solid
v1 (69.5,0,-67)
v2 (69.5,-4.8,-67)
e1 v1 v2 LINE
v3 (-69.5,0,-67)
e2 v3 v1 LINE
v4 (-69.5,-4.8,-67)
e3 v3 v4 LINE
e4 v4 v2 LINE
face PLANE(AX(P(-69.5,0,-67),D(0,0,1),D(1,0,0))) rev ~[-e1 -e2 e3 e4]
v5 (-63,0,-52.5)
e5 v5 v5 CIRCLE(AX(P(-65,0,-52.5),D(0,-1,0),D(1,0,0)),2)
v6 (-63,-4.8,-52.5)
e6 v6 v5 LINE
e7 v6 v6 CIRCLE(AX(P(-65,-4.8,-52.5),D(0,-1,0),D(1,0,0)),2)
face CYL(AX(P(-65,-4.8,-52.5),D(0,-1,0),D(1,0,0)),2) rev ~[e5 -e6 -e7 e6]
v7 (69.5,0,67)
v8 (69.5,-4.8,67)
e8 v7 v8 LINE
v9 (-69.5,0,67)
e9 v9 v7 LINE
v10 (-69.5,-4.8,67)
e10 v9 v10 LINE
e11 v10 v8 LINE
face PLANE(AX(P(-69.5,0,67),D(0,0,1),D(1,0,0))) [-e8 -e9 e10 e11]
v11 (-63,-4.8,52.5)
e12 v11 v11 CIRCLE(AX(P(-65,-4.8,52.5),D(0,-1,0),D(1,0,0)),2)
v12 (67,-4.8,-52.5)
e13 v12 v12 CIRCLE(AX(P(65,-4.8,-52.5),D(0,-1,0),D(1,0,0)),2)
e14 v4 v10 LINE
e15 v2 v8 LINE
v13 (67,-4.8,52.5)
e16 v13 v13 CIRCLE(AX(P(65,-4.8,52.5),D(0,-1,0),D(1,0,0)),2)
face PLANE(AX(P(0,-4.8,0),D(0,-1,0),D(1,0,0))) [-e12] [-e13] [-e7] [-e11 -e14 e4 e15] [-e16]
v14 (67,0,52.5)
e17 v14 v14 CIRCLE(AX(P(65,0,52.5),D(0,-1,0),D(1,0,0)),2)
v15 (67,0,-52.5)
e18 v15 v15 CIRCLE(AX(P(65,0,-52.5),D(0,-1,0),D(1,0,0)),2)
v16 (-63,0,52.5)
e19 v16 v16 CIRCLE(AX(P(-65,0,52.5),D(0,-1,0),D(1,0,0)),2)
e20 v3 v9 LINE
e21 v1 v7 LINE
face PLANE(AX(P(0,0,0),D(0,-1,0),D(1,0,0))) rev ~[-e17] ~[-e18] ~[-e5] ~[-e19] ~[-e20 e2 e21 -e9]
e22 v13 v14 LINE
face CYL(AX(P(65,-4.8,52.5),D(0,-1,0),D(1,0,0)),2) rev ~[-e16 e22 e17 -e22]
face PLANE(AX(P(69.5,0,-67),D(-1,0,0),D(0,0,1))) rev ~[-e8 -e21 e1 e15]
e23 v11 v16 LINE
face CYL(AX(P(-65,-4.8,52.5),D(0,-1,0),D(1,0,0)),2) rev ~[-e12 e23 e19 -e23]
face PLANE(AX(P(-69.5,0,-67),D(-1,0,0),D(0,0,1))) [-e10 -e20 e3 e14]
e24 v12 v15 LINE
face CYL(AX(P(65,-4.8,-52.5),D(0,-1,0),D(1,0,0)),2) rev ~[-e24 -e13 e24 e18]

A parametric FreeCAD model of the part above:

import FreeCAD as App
import Part
import Sketcher

V = App.Vector
Q = App.Units.Quantity


def add_polygon(sketch, points):
    """Adds a closed chain of lines whose ends are joined by coincident constraints."""
    first, n = sketch.GeometryCount, len(points)
    for a, b in zip(points, points[1:] + points[:1]):
        sketch.addGeometry(Part.LineSegment(App.Vector(*a, 0), App.Vector(*b, 0)), False)
    for i in range(n):
        sketch.addConstraint(Sketcher.Constraint("Coincident", first + i, 2, first + (i + 1) % n, 1))

doc = App.newDocument("Part")
body = doc.addObject("PartDesign::Body", "Body")

# Sketch on XZ plane
sketch1 = body.newObject("Sketcher::SketchObject", "Sketch")
sketch1.AttachmentSupport = (doc.getObject("XZ_Plane"), [""])
sketch1.MapMode = "FlatFace"
add_polygon(sketch1, [(-70, 67), (-70, -67), (70, -67), (70, 67)])  # lines 0-3
sketch1.addConstraint([
    Sketcher.Constraint("Vertical", 0),
    Sketcher.Constraint("Horizontal", 1),
    Sketcher.Constraint("Vertical", 2),
    Sketcher.Constraint("Horizontal", 3),
    Sketcher.Constraint("Symmetric", 0, 2, 2, 2, -1, 1),
    Sketcher.Constraint("DistanceX", 1, 1, 1, 2, Q("139 mm")),
    Sketcher.Constraint("DistanceY", 0, 2, 0, 1, Q("134 mm")),
])
pad1 = body.newObject("PartDesign::Pad", "Pad")
pad1.Profile = sketch1
pad1.Length = 4.8

# Sketch on XZ plane
sketch2 = body.newObject("Sketcher::SketchObject", "Sketch001")
sketch2.AttachmentSupport = (doc.getObject("XZ_Plane"), [""])
sketch2.MapMode = "FlatFace"
sketch2.AttachmentOffset = App.Placement(V(0, 0, 4.8), App.Rotation())
sketch2.addGeometry([
    Part.Circle(V(65, 52.5, 0), V(0, 0, 1), 2),
    Part.Circle(V(65, -52.5, 0), V(0, 0, 1), 2),
    Part.Circle(V(-65, -52.5, 0), V(0, 0, 1), 2),
    Part.Circle(V(-65, 52.5, 0), V(0, 0, 1), 2),
], False)
sketch2.addConstraint([
    Sketcher.Constraint("Equal", 0, 1),
    Sketcher.Constraint("Equal", 1, 2),
    Sketcher.Constraint("Equal", 2, 3),
    Sketcher.Constraint("Symmetric", 0, 3, 2, 3, -1, 1),
    Sketcher.Constraint("Symmetric", 1, 3, 3, 3, -1, 1),
    Sketcher.Constraint("Symmetric", 1, 3, 2, 3, -2),
    Sketcher.Constraint("Diameter", 0, Q("4 mm")),
    Sketcher.Constraint("DistanceX", -1, 1, 0, 3, Q("65 mm")),
    Sketcher.Constraint("DistanceY", 1, 3, 0, 3, Q("105 mm")),
])
pocket1 = body.newObject("PartDesign::Pocket", "Pocket")
pocket1.Profile = sketch2
pocket1.Type = "ThroughAll"

doc.recompute()
